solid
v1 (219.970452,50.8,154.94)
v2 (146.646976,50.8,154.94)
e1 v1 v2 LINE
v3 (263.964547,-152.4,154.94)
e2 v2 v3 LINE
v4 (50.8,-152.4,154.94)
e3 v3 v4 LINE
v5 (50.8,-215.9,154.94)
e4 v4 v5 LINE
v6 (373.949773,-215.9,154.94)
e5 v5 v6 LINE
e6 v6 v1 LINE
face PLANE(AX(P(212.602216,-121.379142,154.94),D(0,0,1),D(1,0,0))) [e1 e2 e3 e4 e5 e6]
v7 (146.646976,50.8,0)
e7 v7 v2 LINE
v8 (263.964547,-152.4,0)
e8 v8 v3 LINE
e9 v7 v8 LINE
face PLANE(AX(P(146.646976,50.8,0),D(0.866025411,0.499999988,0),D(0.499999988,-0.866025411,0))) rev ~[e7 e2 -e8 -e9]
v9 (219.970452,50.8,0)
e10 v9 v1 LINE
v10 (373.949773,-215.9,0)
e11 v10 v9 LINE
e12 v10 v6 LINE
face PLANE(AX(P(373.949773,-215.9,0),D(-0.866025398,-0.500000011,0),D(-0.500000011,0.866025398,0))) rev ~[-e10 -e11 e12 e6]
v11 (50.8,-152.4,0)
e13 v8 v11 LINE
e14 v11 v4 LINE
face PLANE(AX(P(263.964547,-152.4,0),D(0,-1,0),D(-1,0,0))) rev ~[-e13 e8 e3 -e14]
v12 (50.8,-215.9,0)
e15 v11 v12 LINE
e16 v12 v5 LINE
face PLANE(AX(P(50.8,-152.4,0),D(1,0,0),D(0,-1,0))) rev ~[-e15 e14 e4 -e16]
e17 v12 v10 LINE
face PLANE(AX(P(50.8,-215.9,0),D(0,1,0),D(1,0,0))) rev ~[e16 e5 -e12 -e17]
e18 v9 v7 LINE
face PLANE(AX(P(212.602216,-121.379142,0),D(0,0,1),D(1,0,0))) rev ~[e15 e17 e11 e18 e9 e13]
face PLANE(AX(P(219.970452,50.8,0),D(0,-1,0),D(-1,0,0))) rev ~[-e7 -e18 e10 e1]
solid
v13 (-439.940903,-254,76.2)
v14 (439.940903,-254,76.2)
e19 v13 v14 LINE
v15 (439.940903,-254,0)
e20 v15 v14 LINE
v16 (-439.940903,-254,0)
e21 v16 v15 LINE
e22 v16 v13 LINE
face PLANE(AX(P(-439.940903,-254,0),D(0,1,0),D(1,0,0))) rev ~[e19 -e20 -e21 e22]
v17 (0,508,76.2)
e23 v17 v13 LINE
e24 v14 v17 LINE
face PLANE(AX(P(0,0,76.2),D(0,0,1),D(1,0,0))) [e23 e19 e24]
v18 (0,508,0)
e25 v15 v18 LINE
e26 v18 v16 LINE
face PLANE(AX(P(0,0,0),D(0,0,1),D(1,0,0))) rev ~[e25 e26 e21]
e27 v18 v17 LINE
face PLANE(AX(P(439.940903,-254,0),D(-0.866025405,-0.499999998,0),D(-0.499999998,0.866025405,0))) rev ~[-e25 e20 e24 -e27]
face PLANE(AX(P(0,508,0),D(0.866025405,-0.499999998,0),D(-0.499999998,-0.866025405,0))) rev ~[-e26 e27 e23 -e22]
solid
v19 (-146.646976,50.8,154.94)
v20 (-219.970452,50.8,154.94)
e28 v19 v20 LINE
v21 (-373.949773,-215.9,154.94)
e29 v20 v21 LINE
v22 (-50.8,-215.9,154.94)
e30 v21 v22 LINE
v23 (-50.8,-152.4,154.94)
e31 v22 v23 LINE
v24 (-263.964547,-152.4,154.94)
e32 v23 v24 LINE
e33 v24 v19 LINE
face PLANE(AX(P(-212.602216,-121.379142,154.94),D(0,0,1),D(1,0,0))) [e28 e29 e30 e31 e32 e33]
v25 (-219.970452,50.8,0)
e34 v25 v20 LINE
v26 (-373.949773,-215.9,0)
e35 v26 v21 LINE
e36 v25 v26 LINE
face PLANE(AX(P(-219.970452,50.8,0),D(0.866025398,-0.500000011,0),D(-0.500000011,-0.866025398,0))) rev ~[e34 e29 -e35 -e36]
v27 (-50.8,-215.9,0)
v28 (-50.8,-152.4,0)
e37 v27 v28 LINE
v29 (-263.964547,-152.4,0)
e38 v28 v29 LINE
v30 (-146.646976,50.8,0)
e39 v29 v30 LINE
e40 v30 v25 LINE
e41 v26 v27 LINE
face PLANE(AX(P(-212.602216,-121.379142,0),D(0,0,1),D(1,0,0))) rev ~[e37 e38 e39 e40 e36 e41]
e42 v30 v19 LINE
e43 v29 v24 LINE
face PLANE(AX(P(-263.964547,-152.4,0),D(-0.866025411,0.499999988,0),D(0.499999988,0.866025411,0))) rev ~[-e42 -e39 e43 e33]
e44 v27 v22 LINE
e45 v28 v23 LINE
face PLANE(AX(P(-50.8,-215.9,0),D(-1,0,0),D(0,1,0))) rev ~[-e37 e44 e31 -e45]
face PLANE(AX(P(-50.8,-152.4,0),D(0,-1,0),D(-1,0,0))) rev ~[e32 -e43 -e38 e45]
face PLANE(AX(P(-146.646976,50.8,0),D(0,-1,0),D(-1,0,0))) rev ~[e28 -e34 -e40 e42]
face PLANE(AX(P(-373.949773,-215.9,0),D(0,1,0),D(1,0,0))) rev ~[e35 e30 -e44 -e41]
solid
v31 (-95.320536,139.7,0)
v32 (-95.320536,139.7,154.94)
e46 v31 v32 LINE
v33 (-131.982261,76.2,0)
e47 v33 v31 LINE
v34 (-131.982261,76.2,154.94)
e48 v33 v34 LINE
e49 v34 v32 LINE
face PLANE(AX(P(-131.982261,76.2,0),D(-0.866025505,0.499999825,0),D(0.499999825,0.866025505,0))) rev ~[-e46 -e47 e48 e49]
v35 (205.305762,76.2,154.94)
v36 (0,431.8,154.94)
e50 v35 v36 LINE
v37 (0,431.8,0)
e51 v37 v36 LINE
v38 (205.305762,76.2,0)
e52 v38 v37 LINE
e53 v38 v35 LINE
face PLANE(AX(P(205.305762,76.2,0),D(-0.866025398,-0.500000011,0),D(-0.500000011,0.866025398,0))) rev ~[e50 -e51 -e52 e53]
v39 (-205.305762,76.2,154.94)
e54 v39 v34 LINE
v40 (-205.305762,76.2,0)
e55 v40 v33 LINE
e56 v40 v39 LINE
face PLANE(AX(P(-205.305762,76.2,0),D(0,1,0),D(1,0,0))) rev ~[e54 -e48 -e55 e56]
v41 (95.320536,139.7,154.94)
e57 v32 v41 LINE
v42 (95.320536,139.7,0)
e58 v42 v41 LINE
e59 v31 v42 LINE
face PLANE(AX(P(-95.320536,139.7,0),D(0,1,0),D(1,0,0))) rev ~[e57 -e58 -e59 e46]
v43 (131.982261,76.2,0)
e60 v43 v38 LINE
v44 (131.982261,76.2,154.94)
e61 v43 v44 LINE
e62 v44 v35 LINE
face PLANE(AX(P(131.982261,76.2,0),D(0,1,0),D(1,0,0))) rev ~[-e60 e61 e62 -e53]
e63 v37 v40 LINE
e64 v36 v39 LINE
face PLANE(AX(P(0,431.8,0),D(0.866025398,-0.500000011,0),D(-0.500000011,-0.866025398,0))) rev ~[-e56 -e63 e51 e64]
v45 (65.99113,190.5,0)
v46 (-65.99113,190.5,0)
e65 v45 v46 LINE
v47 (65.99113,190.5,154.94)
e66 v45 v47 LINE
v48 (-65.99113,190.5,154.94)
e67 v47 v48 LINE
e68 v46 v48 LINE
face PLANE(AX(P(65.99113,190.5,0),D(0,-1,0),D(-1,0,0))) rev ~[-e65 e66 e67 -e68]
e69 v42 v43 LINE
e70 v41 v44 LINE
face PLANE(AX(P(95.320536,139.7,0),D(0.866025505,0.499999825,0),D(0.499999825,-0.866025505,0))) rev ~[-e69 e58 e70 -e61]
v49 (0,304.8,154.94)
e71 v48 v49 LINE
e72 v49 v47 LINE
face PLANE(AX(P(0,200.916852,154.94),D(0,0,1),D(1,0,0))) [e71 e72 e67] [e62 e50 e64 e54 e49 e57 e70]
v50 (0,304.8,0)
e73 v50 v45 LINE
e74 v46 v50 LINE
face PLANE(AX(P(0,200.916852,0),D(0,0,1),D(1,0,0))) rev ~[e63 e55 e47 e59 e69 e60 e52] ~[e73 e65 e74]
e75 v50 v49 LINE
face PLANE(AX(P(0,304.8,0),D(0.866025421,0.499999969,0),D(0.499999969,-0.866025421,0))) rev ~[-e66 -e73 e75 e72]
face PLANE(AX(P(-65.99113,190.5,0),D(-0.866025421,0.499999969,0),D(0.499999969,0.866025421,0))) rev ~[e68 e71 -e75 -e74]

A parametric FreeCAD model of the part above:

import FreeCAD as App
import Part
import Sketcher
from FreeCAD import Vector
Q = App.Units.Quantity

doc = App.newDocument("Part")
params = doc.addObject("Spreadsheet::Sheet", "Params")
for row, (alias, value) in enumerate([
    ("pad1_length", "6.1 in"),
    ("sketch2_height", "2.5 in"),
    ("pad2_length", "6.1 in"),
    ("sketch3_height", "2.5 in"),
    ("pad3_length", "6.1 in"),
    ("pad4_length", "3 in"),
], start=1):
    params.set(f"A{row}", alias)
    params.set(f"B{row}", "=" + value)
    params.setAlias(f"B{row}", alias)

body = doc.addObject("PartDesign::Body", "Body")

# Sketch on XY plane
sketch1 = doc.addObject("Sketcher::SketchObject", "Sketch")
body.addObject(sketch1)
sketch1.AttachmentSupport = (doc.XY_Plane, [""])
sketch1.MapMode = "FlatFace"
sketch1.addGeometry([
    Part.LineSegment(Vector(132, 76, 0), Vector(205, 76, 0)),  # 0
    Part.LineSegment(Vector(205, 76, 0), Vector(0, 432, 0)),  # 1
    Part.LineSegment(Vector(0, 432, 0), Vector(-205, 76, 0)),  # 2
    Part.LineSegment(Vector(-205, 76, 0), Vector(-132, 76, 0)),  # 3
    Part.LineSegment(Vector(-132, 76, 0), Vector(-95, 140, 0)),  # 4
    Part.LineSegment(Vector(-95, 140, 0), Vector(95, 140, 0)),  # 5
    Part.LineSegment(Vector(95, 140, 0), Vector(132, 76, 0)),  # 6
    Part.LineSegment(Vector(-66, 190, 0), Vector(0, 305, 0)),  # 7
    Part.LineSegment(Vector(0, 305, 0), Vector(66, 190, 0)),  # 8
    Part.LineSegment(Vector(66, 190, 0), Vector(-66, 190, 0)),  # 9
], False)
sketch1.addConstraint([
    Sketcher.Constraint("Coincident", 0, 2, 1, 1),
    Sketcher.Constraint("Coincident", 1, 2, 2, 1),
    Sketcher.Constraint("Coincident", 2, 2, 3, 1),
    Sketcher.Constraint("Coincident", 3, 2, 4, 1),
    Sketcher.Constraint("Coincident", 4, 2, 5, 1),
    Sketcher.Constraint("Coincident", 5, 2, 6, 1),
    Sketcher.Constraint("Coincident", 6, 2, 0, 1),
    Sketcher.Constraint("Coincident", 7, 2, 8, 1),
    Sketcher.Constraint("Coincident", 8, 2, 9, 1),
    Sketcher.Constraint("Coincident", 9, 2, 7, 1),
    Sketcher.Constraint("Horizontal", 0),
    Sketcher.Constraint("Horizontal", 3),
    Sketcher.Constraint("Horizontal", 5),
    Sketcher.Constraint("Horizontal", 9),
    Sketcher.Constraint("Symmetric", 0, 2, 2, 2, -2),
    Sketcher.Constraint("PointOnObject", 1, 2, -2),
    Sketcher.Constraint("PointOnObject", 7, 2, -2),
    Sketcher.Constraint("Parallel", 2, 4),
    Sketcher.Constraint("Parallel", 1, 6),
    Sketcher.Constraint("Parallel", 4, 7),
    Sketcher.Constraint("Parallel", 6, 8),
    Sketcher.Constraint("Equal", 0, 3),
    Sketcher.Constraint("DistanceY", -1, 1, 0, 2, Q("3 in")),
    Sketcher.Constraint("DistanceY", -1, 1, 1, 2, Q("17 in")),
    Sketcher.Constraint("DistanceY", -1, 1, 7, 2, Q("12 in")),
    Sketcher.Constraint("Angle", 1, Q("120.000001 deg")),
    Sketcher.Constraint("DistanceY", 5, 2, 8, 2, Q("2 in")),
    Sketcher.Constraint("DistanceY", -1, 1, 4, 2, Q("5.5 in")),
    Sketcher.Constraint("DistanceX", 0, 1, 0, 2, 73.323501),
])
pad1 = doc.addObject("PartDesign::Pad", "Pad")
body.addObject(pad1)
pad1.Profile = sketch1
pad1.setExpression("Length", "Params.pad1_length")
body2 = doc.addObject("PartDesign::Body", "Body001")

# Sketch on XY plane
sketch2 = doc.addObject("Sketcher::SketchObject", "Sketch001")
body2.addObject(sketch2)
sketch2.AttachmentSupport = (doc.getObject("XY_Plane001"), [""])
sketch2.MapMode = "FlatFace"
sketch2.addGeometry([
    Part.LineSegment(Vector(-147, 51, 0), Vector(-220, 51, 0)),  # 0
    Part.LineSegment(Vector(-220, 51, 0), Vector(-374, -216, 0)),  # 1
    Part.LineSegment(Vector(-374, -216, 0), Vector(-51, -216, 0)),  # 2
    Part.LineSegment(Vector(-51, -216, 0), Vector(-51, -152, 0)),  # 3
    Part.LineSegment(Vector(-51, -152, 0), Vector(-264, -152, 0)),  # 4
    Part.LineSegment(Vector(-264, -152, 0), Vector(-147, 51, 0)),  # 5
], False)
sketch2.addConstraint([
    Sketcher.Constraint("Coincident", 0, 2, 1, 1),
    Sketcher.Constraint("Coincident", 1, 2, 2, 1),
    Sketcher.Constraint("Coincident", 2, 2, 3, 1),
    Sketcher.Constraint("Coincident", 3, 2, 4, 1),
    Sketcher.Constraint("Coincident", 4, 2, 5, 1),
    Sketcher.Constraint("Coincident", 5, 2, 0, 1),
    Sketcher.Constraint("Horizontal", 0),
    Sketcher.Constraint("Horizontal", 2),
    Sketcher.Constraint("Vertical", 3),
    Sketcher.Constraint("Horizontal", 4),
    Sketcher.Constraint("Parallel", 1, 5),
    Sketcher.Constraint("DistanceY", 3, 1, 3, 2, Q("2.5 in")),
    Sketcher.Constraint("DistanceY", -1, 1, 0, 2, Q("2 in")),
    Sketcher.Constraint("DistanceX", 2, 2, -1, 1, Q("2 in")),
    Sketcher.Constraint("DistanceY", 3, 2, -1, 1, Q("6 in")),
    Sketcher.Constraint("Angle", 1, Q("-120.000001 deg")),
    Sketcher.Constraint("DistanceX", 0, 2, 0, 1, 73.323475),
    Sketcher.Constraint("DistanceX", 2, 1, 2, 2, 323.149773),
])
sketch2.setExpression("Constraints[11]", "Params.sketch2_height")
pad2 = doc.addObject("PartDesign::Pad", "Pad001")
body2.addObject(pad2)
pad2.Profile = sketch2
pad2.setExpression("Length", "Params.pad2_length")
body3 = doc.addObject("PartDesign::Body", "Body002")

# Sketch on XY plane
sketch3 = doc.addObject("Sketcher::SketchObject", "Sketch002")
body3.addObject(sketch3)
sketch3.AttachmentSupport = (doc.getObject("XY_Plane002"), [""])
sketch3.MapMode = "FlatFace"
sketch3.addGeometry([
    Part.LineSegment(Vector(374, -216, 0), Vector(220, 51, 0)),  # 0
    Part.LineSegment(Vector(220, 51, 0), Vector(147, 51, 0)),  # 1
    Part.LineSegment(Vector(147, 51, 0), Vector(264, -152, 0)),  # 2
    Part.LineSegment(Vector(264, -152, 0), Vector(51, -152, 0)),  # 3
    Part.LineSegment(Vector(51, -152, 0), Vector(51, -216, 0)),  # 4
    Part.LineSegment(Vector(51, -216, 0), Vector(374, -216, 0)),  # 5
], False)
sketch3.addConstraint([
    Sketcher.Constraint("Coincident", 0, 2, 1, 1),
    Sketcher.Constraint("Coincident", 1, 2, 2, 1),
    Sketcher.Constraint("Coincident", 2, 2, 3, 1),
    Sketcher.Constraint("Coincident", 3, 2, 4, 1),
    Sketcher.Constraint("Coincident", 4, 2, 5, 1),
    Sketcher.Constraint("Coincident", 5, 2, 0, 1),
    Sketcher.Constraint("Horizontal", 1),
    Sketcher.Constraint("Horizontal", 3),
    Sketcher.Constraint("Vertical", 4),
    Sketcher.Constraint("Horizontal", 5),
    Sketcher.Constraint("Parallel", 0, 2),
    Sketcher.Constraint("DistanceY", 4, 2, 4, 1, Q("2.5 in")),
    Sketcher.Constraint("DistanceY", -1, 1, 0, 2, Q("2 in")),
    Sketcher.Constraint("DistanceY", 2, 2, -1, 1, Q("6 in")),
    Sketcher.Constraint("DistanceX", -1, 1, 3, 2, Q("2 in")),
    Sketcher.Constraint("Angle", 0, Q("120.000001 deg")),
    Sketcher.Constraint("DistanceX", 1, 2, 1, 1, 73.323475),
    Sketcher.Constraint("DistanceX", 3, 2, 3, 1, 213.164547),
])
sketch3.setExpression("Constraints[11]", "Params.sketch3_height")
pad3 = doc.addObject("PartDesign::Pad", "Pad002")
body3.addObject(pad3)
pad3.Profile = sketch3
pad3.setExpression("Length", "Params.pad3_length")
body4 = doc.addObject("PartDesign::Body", "Body003")

# Sketch on XY plane
sketch4 = doc.addObject("Sketcher::SketchObject", "Sketch003")
body4.addObject(sketch4)
sketch4.AttachmentSupport = (doc.getObject("XY_Plane003"), [""])
sketch4.MapMode = "FlatFace"
sketch4.addGeometry([
    Part.LineSegment(Vector(440, -254, 0), Vector(0, 508, 0)),
    Part.LineSegment(Vector(0, 508, 0), Vector(-440, -254, 0)),
    Part.LineSegment(Vector(-440, -254, 0), Vector(440, -254, 0)),
], False)
sketch4.addConstraint([
    Sketcher.Constraint("Coincident", 0, 2, 1, 1),
    Sketcher.Constraint("Coincident", 1, 2, 2, 1),
    Sketcher.Constraint("Coincident", 2, 2, 0, 1),
    Sketcher.Constraint("Horizontal", 2),
    Sketcher.Constraint("PointOnObject", 0, 2, -2),
    Sketcher.Constraint("Equal", 0, 1),
    Sketcher.Constraint("DistanceY", -1, 1, 0, 2, Q("20 in")),
    Sketcher.Constraint("DistanceY", 1, 2, -1, 1, Q("10 in")),
    Sketcher.Constraint("Angle", 0, Q("120 deg")),
])
pad4 = doc.addObject("PartDesign::Pad", "Pad003")
body4.addObject(pad4)
pad4.Profile = sketch4
pad4.setExpression("Length", "Params.pad4_length")

doc.recompute()
